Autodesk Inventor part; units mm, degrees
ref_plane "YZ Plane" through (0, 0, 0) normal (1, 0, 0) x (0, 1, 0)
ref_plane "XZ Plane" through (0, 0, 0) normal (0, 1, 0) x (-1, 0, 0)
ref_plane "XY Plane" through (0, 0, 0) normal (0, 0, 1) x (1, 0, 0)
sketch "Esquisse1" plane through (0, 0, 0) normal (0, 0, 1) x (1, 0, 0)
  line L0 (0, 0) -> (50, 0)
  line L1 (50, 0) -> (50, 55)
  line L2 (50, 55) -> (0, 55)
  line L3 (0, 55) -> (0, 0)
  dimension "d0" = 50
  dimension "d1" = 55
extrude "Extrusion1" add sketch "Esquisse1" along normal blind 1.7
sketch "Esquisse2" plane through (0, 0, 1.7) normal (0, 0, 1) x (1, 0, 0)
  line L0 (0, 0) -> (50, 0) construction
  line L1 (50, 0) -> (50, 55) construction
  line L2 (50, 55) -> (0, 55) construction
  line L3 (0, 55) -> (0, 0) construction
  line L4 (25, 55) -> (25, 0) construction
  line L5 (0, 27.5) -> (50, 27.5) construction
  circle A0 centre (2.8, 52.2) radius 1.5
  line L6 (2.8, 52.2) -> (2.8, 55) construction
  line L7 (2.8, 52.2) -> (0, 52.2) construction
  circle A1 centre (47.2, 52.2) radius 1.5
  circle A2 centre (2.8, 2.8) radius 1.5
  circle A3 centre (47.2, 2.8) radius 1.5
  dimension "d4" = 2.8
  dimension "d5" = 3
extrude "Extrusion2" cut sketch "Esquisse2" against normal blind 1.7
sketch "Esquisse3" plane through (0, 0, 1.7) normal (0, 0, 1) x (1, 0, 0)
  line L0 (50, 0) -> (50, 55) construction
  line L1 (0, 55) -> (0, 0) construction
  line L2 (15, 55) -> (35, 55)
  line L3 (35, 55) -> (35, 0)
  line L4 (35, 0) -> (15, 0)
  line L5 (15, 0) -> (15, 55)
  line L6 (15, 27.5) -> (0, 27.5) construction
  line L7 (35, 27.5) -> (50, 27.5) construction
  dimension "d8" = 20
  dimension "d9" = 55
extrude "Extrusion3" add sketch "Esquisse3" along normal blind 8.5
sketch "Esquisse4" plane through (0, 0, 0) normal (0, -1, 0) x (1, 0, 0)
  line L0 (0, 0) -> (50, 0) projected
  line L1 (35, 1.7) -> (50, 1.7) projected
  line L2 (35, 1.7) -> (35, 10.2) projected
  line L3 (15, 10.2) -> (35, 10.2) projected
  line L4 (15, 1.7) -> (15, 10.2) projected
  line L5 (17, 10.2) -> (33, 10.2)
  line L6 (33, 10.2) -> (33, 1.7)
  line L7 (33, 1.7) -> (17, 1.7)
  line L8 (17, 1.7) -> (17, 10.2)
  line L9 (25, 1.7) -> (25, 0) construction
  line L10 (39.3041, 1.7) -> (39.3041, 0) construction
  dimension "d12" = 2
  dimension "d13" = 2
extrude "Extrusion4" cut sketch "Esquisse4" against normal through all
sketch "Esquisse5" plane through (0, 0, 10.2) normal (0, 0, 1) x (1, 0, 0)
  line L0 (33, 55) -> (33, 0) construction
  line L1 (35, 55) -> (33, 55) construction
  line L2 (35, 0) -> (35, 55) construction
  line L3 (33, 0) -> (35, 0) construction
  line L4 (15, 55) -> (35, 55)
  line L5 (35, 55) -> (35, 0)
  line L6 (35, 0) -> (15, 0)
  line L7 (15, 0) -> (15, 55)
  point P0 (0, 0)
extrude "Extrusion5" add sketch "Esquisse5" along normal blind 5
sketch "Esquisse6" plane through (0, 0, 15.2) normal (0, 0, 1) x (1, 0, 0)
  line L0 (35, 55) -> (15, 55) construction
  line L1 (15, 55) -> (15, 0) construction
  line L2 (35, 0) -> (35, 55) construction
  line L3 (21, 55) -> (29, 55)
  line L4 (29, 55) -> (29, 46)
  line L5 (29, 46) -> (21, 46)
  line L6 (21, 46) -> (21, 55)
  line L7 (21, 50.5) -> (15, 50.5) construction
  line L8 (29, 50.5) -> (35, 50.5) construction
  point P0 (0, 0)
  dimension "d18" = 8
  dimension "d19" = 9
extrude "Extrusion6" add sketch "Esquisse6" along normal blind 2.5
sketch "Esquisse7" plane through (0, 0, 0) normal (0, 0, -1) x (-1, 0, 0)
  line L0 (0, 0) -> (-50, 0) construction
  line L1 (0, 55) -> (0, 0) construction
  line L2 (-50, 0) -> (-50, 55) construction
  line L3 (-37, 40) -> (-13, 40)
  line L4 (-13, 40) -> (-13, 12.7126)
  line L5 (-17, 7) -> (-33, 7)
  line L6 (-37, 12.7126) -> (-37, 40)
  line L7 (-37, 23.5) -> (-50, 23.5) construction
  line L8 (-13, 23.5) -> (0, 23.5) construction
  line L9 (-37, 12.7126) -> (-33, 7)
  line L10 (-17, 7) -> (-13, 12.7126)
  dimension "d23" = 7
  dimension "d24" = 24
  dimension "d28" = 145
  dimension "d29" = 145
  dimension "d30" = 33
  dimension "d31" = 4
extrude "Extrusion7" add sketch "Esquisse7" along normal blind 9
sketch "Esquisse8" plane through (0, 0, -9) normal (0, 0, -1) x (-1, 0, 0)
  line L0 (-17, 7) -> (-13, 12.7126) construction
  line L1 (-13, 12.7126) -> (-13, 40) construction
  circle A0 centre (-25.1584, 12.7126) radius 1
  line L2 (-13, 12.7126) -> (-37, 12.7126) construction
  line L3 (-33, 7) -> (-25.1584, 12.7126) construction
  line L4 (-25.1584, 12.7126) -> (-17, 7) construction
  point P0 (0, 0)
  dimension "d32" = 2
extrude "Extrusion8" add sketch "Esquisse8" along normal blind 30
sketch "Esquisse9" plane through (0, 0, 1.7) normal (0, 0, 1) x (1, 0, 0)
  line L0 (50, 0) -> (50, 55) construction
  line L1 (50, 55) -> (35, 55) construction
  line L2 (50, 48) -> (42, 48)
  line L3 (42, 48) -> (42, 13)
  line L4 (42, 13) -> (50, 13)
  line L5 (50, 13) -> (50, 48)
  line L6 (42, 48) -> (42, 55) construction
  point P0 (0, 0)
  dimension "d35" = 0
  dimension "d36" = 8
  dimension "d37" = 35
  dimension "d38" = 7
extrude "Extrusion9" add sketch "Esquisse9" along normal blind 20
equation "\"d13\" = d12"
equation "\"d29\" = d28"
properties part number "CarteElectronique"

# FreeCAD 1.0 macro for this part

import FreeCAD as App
import Part
import Sketcher
Q = App.Units.Quantity

doc = App.newDocument("Part")
body = doc.addObject("PartDesign::Body", "Body")

sketch1 = body.newObject("Sketcher::SketchObject", "Sketch")
sketch1.AttachmentSupport = (doc.getObject("XY_Plane"), [""])
sketch1.MapMode = "FlatFace"
sketch1.addGeometry([
    Part.LineSegment(App.Vector(0, 55, 0), App.Vector(0, 0, 0)),
    Part.LineSegment(App.Vector(0, 0, 0), App.Vector(50, 0, 0)),
    Part.LineSegment(App.Vector(50, 0, 0), App.Vector(50, 55, 0)),
    Part.LineSegment(App.Vector(50, 55, 0), App.Vector(0, 55, 0)),
], False)
sketch1.addConstraint([
    Sketcher.Constraint("Coincident", 0, 2, 1, 1),
    Sketcher.Constraint("Coincident", 1, 2, 2, 1),
    Sketcher.Constraint("Coincident", 2, 2, 3, 1),
    Sketcher.Constraint("Coincident", 3, 2, 0, 1),
    Sketcher.Constraint("Vertical", 0),
    Sketcher.Constraint("Horizontal", 1),
    Sketcher.Constraint("Vertical", 2),
    Sketcher.Constraint("Horizontal", 3),
    Sketcher.Constraint("Coincident", 0, 2, -1, 1),
    Sketcher.Constraint("DistanceX", 1, 1, 1, 2, Q("50 mm")),
    Sketcher.Constraint("DistanceY", 0, 2, 0, 1, Q("55 mm")),
])
pad1 = body.newObject("PartDesign::Pad", "Pad")
pad1.Profile = sketch1
pad1.Length = 1.7

sketch2 = body.newObject("Sketcher::SketchObject", "Sketch001")
sketch2.AttachmentSupport = (doc.getObject("XY_Plane"), [""])
sketch2.MapMode = "FlatFace"
sketch2.AttachmentOffset = App.Placement(App.Vector(0, 0, 1.7), App.Rotation())
sketch2.addGeometry([
    Part.Circle(App.Vector(2.8, 52.2, 0), App.Vector(0, 0, 1), 1.5),
    Part.Circle(App.Vector(47.2, 52.2, 0), App.Vector(0, 0, 1), 1.5),
    Part.Circle(App.Vector(2.8, 2.8, 0), App.Vector(0, 0, 1), 1.5),
    Part.Circle(App.Vector(47.2, 2.8, 0), App.Vector(0, 0, 1), 1.5),
], False)
sketch2.addConstraint([
    Sketcher.Constraint("Equal", 0, 1),
    Sketcher.Constraint("Equal", 1, 2),
    Sketcher.Constraint("Equal", 2, 3),
    Sketcher.Constraint("Horizontal", 0, 3, 1, 3),
    Sketcher.Constraint("Horizontal", 2, 3, 3, 3),
    Sketcher.Constraint("Vertical", 0, 3, 2, 3),
    Sketcher.Constraint("Vertical", 1, 3, 3, 3),
    Sketcher.Constraint("Diameter", 0, Q("3 mm")),
    Sketcher.Constraint("DistanceX", -1, 1, 0, 3, Q("2.8 mm")),
    Sketcher.Constraint("DistanceY", -1, 1, 2, 3, Q("2.8 mm")),
    Sketcher.Constraint("DistanceY", -1, 1, 0, 3, Q("52.2 mm")),
    Sketcher.Constraint("DistanceX", -1, 1, 1, 3, Q("47.2 mm")),
])
pocket1 = body.newObject("PartDesign::Pocket", "Pocket")
pocket1.Profile = sketch2
pocket1.Length = 1.7

sketch3 = body.newObject("Sketcher::SketchObject", "Sketch002")
sketch3.AttachmentSupport = (doc.getObject("XY_Plane"), [""])
sketch3.MapMode = "FlatFace"
sketch3.AttachmentOffset = App.Placement(App.Vector(0, 0, 1.7), App.Rotation())
sketch3.addGeometry([
    Part.LineSegment(App.Vector(35, 55, 0), App.Vector(15, 55, 0)),
    Part.LineSegment(App.Vector(15, 55, 0), App.Vector(15, 0, 0)),
    Part.LineSegment(App.Vector(15, 0, 0), App.Vector(35, 0, 0)),
    Part.LineSegment(App.Vector(35, 0, 0), App.Vector(35, 55, 0)),
], False)
sketch3.addConstraint([
    Sketcher.Constraint("Coincident", 0, 2, 1, 1),
    Sketcher.Constraint("Coincident", 1, 2, 2, 1),
    Sketcher.Constraint("Coincident", 2, 2, 3, 1),
    Sketcher.Constraint("Coincident", 3, 2, 0, 1),
    Sketcher.Constraint("Horizontal", 0),
    Sketcher.Constraint("Vertical", 1),
    Sketcher.Constraint("Horizontal", 2),
    Sketcher.Constraint("Vertical", 3),
    Sketcher.Constraint("PointOnObject", 1, 2, -1),
    Sketcher.Constraint("DistanceX", 0, 2, 0, 1, Q("20 mm")),
    Sketcher.Constraint("DistanceY", 1, 2, 1, 1, Q("55 mm")),
    Sketcher.Constraint("DistanceX", -1, 1, 0, 2, Q("15 mm")),
])
pad2 = body.newObject("PartDesign::Pad", "Pad001")
pad2.Profile = sketch3
pad2.Length = 8.5

sketch4 = body.newObject("Sketcher::SketchObject", "Sketch003")
sketch4.AttachmentSupport = (doc.getObject("XZ_Plane"), [""])
sketch4.MapMode = "FlatFace"
sketch4.addGeometry([
    Part.LineSegment(App.Vector(33, 10, 0), App.Vector(17, 10, 0)),
    Part.LineSegment(App.Vector(17, 10, 0), App.Vector(17, 2, 0)),
    Part.LineSegment(App.Vector(17, 2, 0), App.Vector(33, 2, 0)),
    Part.LineSegment(App.Vector(33, 2, 0), App.Vector(33, 10, 0)),
], False)
sketch4.addConstraint([
    Sketcher.Constraint("Coincident", 0, 2, 1, 1),
    Sketcher.Constraint("Coincident", 1, 2, 2, 1),
    Sketcher.Constraint("Coincident", 2, 2, 3, 1),
    Sketcher.Constraint("Coincident", 3, 2, 0, 1),
    Sketcher.Constraint("Horizontal", 0),
    Sketcher.Constraint("Vertical", 1),
    Sketcher.Constraint("Horizontal", 2),
    Sketcher.Constraint("Vertical", 3),
    Sketcher.Constraint("DistanceX", 0, 2, 0, 1, Q("16 mm")),
    Sketcher.Constraint("DistanceY", 1, 2, 1, 1, Q("8.5 mm")),
    Sketcher.Constraint("DistanceX", -1, 1, 0, 2, Q("17 mm")),
    Sketcher.Constraint("DistanceY", -1, 1, 0, 2, Q("10.2 mm")),
])
pocket2 = body.newObject("PartDesign::Pocket", "Pocket001")
pocket2.Profile = sketch4
pocket2.Type = "ThroughAll"

sketch5 = body.newObject("Sketcher::SketchObject", "Sketch004")
sketch5.AttachmentSupport = (doc.getObject("XY_Plane"), [""])
sketch5.MapMode = "FlatFace"
sketch5.AttachmentOffset = App.Placement(App.Vector(0, 0, 10.2), App.Rotation())
sketch5.addGeometry([
    Part.LineSegment(App.Vector(35, 55, 0), App.Vector(15, 55, 0)),
    Part.LineSegment(App.Vector(15, 55, 0), App.Vector(15, 0, 0)),
    Part.LineSegment(App.Vector(15, 0, 0), App.Vector(35, 0, 0)),
    Part.LineSegment(App.Vector(35, 0, 0), App.Vector(35, 55, 0)),
], False)
sketch5.addConstraint([
    Sketcher.Constraint("Coincident", 0, 2, 1, 1),
    Sketcher.Constraint("Coincident", 1, 2, 2, 1),
    Sketcher.Constraint("Coincident", 2, 2, 3, 1),
    Sketcher.Constraint("Coincident", 3, 2, 0, 1),
    Sketcher.Constraint("Horizontal", 0),
    Sketcher.Constraint("Vertical", 1),
    Sketcher.Constraint("Horizontal", 2),
    Sketcher.Constraint("Vertical", 3),
    Sketcher.Constraint("PointOnObject", 1, 2, -1),
    Sketcher.Constraint("DistanceX", 0, 2, 0, 1, Q("20 mm")),
    Sketcher.Constraint("DistanceY", 1, 2, 1, 1, Q("55 mm")),
    Sketcher.Constraint("DistanceX", -1, 1, 0, 2, Q("15 mm")),
])
pad3 = body.newObject("PartDesign::Pad", "Pad002")
pad3.Profile = sketch5
pad3.Length = 5

sketch6 = body.newObject("Sketcher::SketchObject", "Sketch005")
sketch6.AttachmentSupport = (doc.getObject("XY_Plane"), [""])
sketch6.MapMode = "FlatFace"
sketch6.AttachmentOffset = App.Placement(App.Vector(0, 0, 15.2), App.Rotation())
sketch6.addGeometry([
    Part.LineSegment(App.Vector(29, 55, 0), App.Vector(21, 55, 0)),
    Part.LineSegment(App.Vector(21, 55, 0), App.Vector(21, 46, 0)),
    Part.LineSegment(App.Vector(21, 46, 0), App.Vector(29, 46, 0)),
    Part.LineSegment(App.Vector(29, 46, 0), App.Vector(29, 55, 0)),
], False)
sketch6.addConstraint([
    Sketcher.Constraint("Coincident", 0, 2, 1, 1),
    Sketcher.Constraint("Coincident", 1, 2, 2, 1),
    Sketcher.Constraint("Coincident", 2, 2, 3, 1),
    Sketcher.Constraint("Coincident", 3, 2, 0, 1),
    Sketcher.Constraint("Horizontal", 0),
    Sketcher.Constraint("Vertical", 1),
    Sketcher.Constraint("Horizontal", 2),
    Sketcher.Constraint("Vertical", 3),
    Sketcher.Constraint("DistanceX", 0, 2, 0, 1, Q("8 mm")),
    Sketcher.Constraint("DistanceY", 1, 2, 1, 1, Q("9 mm")),
    Sketcher.Constraint("DistanceX", -1, 1, 0, 2, Q("21 mm")),
    Sketcher.Constraint("DistanceY", -1, 1, 0, 2, Q("55 mm")),
])
pad4 = body.newObject("PartDesign::Pad", "Pad003")
pad4.Profile = sketch6
pad4.Length = 2.5

sketch7 = body.newObject("Sketcher::SketchObject", "Sketch006")
sketch7.AttachmentSupport = (doc.getObject("XY_Plane"), [""])
sketch7.MapMode = "FlatFace"
sketch7.addGeometry([
    Part.LineSegment(App.Vector(13, 40, 0), App.Vector(37, 40, 0)),
    Part.LineSegment(App.Vector(37, 40, 0), App.Vector(37, 13, 0)),
    Part.LineSegment(App.Vector(37, 13, 0), App.Vector(33, 7, 0)),
    Part.LineSegment(App.Vector(33, 7, 0), App.Vector(17, 7, 0)),
    Part.LineSegment(App.Vector(17, 7, 0), App.Vector(13, 13, 0)),
    Part.LineSegment(App.Vector(13, 13, 0), App.Vector(13, 40, 0)),
], False)
sketch7.addConstraint([
    Sketcher.Constraint("Coincident", 0, 2, 1, 1),
    Sketcher.Constraint("Coincident", 1, 2, 2, 1),
    Sketcher.Constraint("Coincident", 2, 2, 3, 1),
    Sketcher.Constraint("Coincident", 3, 2, 4, 1),
    Sketcher.Constraint("Coincident", 4, 2, 5, 1),
    Sketcher.Constraint("Coincident", 5, 2, 0, 1),
    Sketcher.Constraint("Horizontal", 0),
    Sketcher.Constraint("Vertical", 1),
    Sketcher.Constraint("Horizontal", 3),
    Sketcher.Constraint("Vertical", 5),
    Sketcher.Constraint("Horizontal", 1, 2, 4, 2),
    Sketcher.Constraint("Equal", 2, 4),
    Sketcher.Constraint("DistanceX", 0, 1, 0, 2, Q("24 mm")),
    Sketcher.Constraint("DistanceX", -1, 1, 2, 2, Q("33 mm")),
    Sketcher.Constraint("DistanceY", -1, 1, 2, 2, Q("7 mm")),
    Sketcher.Constraint("DistanceX", 2, 2, 1, 2, Q("4 mm")),
    Sketcher.Constraint("DistanceY", 2, 2, 0, 2, Q("33 mm")),
    Sketcher.Constraint("Angle", 2, Q("-125 deg")),
])
pad5 = body.newObject("PartDesign::Pad", "Pad004")
pad5.Profile = sketch7
pad5.Length = 9
pad5.Reversed = True

sketch8 = body.newObject("Sketcher::SketchObject", "Sketch007")
sketch8.AttachmentSupport = (doc.getObject("XY_Plane"), [""])
sketch8.MapMode = "FlatFace"
sketch8.AttachmentOffset = App.Placement(App.Vector(0, 0, -9), App.Rotation())
sketch8.addGeometry(Part.Circle(App.Vector(25.2, 12.7, 0), App.Vector(0, 0, 1), 1), False)
sketch8.addConstraint([
    Sketcher.Constraint("Diameter", 0, Q("2 mm")),
    Sketcher.Constraint("DistanceX", -1, 1, 0, 3, Q("25.1584 mm")),
    Sketcher.Constraint("DistanceY", -1, 1, 0, 3, Q("12.7126 mm")),
])
pad6 = body.newObject("PartDesign::Pad", "Pad005")
pad6.Profile = sketch8
pad6.Length = 30
pad6.Reversed = True

sketch9 = body.newObject("Sketcher::SketchObject", "Sketch008")
sketch9.AttachmentSupport = (doc.getObject("XY_Plane"), [""])
sketch9.MapMode = "FlatFace"
sketch9.AttachmentOffset = App.Placement(App.Vector(0, 0, 1.7), App.Rotation())
sketch9.addGeometry([
    Part.LineSegment(App.Vector(50, 13, 0), App.Vector(50, 48, 0)),
    Part.LineSegment(App.Vector(50, 48, 0), App.Vector(42, 48, 0)),
    Part.LineSegment(App.Vector(42, 48, 0), App.Vector(42, 13, 0)),
    Part.LineSegment(App.Vector(42, 13, 0), App.Vector(50, 13, 0)),
], False)
sketch9.addConstraint([
    Sketcher.Constraint("Coincident", 0, 2, 1, 1),
    Sketcher.Constraint("Coincident", 1, 2, 2, 1),
    Sketcher.Constraint("Coincident", 2, 2, 3, 1),
    Sketcher.Constraint("Coincident", 3, 2, 0, 1),
    Sketcher.Constraint("Vertical", 0),
    Sketcher.Constraint("Horizontal", 1),
    Sketcher.Constraint("Vertical", 2),
    Sketcher.Constraint("Horizontal", 3),
    Sketcher.Constraint("DistanceX", 1, 2, 1, 1, Q("8 mm")),
    Sketcher.Constraint("DistanceY", 0, 1, 0, 2, Q("35 mm")),
    Sketcher.Constraint("DistanceX", -1, 1, 0, 2, Q("50 mm")),
    Sketcher.Constraint("DistanceY", -1, 1, 0, 2, Q("48 mm")),
])
pad7 = body.newObject("PartDesign::Pad", "Pad006")
pad7.Profile = sketch9
pad7.Length = 20

doc.recompute()
